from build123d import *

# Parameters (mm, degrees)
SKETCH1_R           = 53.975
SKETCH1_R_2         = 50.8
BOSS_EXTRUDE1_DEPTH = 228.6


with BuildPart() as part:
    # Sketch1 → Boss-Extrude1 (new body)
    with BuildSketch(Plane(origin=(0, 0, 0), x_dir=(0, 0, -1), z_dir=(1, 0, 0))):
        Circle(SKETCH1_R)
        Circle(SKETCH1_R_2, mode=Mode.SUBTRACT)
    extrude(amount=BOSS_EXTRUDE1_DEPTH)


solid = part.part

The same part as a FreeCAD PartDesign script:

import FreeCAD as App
import Part
import Sketcher
from FreeCAD import Vector
Q = App.Units.Quantity

doc = App.newDocument("Part")
body = doc.addObject("PartDesign::Body", "Body")

# Sketch on YZ plane
sketch1 = doc.addObject("Sketcher::SketchObject", "Sketch")
body.addObject(sketch1)
sketch1.AttachmentSupport = (doc.YZ_Plane, [""])
sketch1.MapMode = "FlatFace"
sketch1.addGeometry([
    Part.Circle(Vector(0, 0, 0), Vector(0, 0, 1), 54),
    Part.Circle(Vector(0, 0, 0), Vector(0, 0, 1), 51),
], False)
sketch1.addConstraint([
    Sketcher.Constraint("Coincident", 0, 3, -1, 1),
    Sketcher.Constraint("Coincident", 1, 3, -1, 1),
    Sketcher.Constraint("Diameter", 1, Q("4 in")),
    Sketcher.Constraint("Diameter", 0, Q("4.25 in")),
])
pad1 = doc.addObject("PartDesign::Pad", "Pad")
body.addObject(pad1)
pad1.Profile = sketch1
pad1.Length = Q("9 in")

doc.recompute()
